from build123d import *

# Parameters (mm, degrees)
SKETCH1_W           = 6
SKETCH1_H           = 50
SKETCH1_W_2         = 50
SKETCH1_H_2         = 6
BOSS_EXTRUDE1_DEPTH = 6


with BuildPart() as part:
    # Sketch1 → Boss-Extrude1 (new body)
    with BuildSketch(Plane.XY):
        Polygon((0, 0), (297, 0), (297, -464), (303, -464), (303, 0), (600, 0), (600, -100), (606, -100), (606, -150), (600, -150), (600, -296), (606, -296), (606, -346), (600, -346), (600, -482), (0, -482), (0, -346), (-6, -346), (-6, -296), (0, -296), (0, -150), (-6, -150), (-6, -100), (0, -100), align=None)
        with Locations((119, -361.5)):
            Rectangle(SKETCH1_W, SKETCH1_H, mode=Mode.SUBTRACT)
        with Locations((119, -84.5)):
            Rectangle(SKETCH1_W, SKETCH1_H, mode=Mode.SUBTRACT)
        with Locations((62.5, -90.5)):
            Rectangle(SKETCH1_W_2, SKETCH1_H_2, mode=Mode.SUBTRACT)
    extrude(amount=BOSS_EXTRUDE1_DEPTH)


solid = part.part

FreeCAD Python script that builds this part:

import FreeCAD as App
import Part
import Sketcher

V = App.Vector
Q = App.Units.Quantity


def add_polygon(sketch, points):
    """Adds a closed chain of lines whose ends are joined by coincident constraints."""
    first, n = sketch.GeometryCount, len(points)
    for a, b in zip(points, points[1:] + points[:1]):
        sketch.addGeometry(Part.LineSegment(App.Vector(*a, 0), App.Vector(*b, 0)), False)
    for i in range(n):
        sketch.addConstraint(Sketcher.Constraint("Coincident", first + i, 2, first + (i + 1) % n, 1))

doc = App.newDocument("Part")
params = doc.addObject("Spreadsheet::Sheet", "Params")
for row, (alias, value) in enumerate([
    ("sketch1_width", "297 mm"),
    ("sketch1_width2", "6 mm"),
    ("sketch1_width3", "50 mm"),
    ("sketch1_height", "100 mm"),
    ("sketch1_height2", "146 mm"),
    ("pad1_length", "6 mm"),
], start=1):
    params.set(f"A{row}", alias)
    params.set(f"B{row}", "=" + value)
    params.setAlias(f"B{row}", alias)

body = doc.addObject("PartDesign::Body", "Body")

# Sketch on XY plane
sketch1 = body.newObject("Sketcher::SketchObject", "Sketch")
sketch1.AttachmentSupport = (doc.getObject("XY_Plane"), [""])
sketch1.MapMode = "FlatFace"
add_polygon(sketch1, [(297, 0), (0, 0), (0, -100), (-6, -100), (-6, -150), (0, -150), (0, -296), (-6, -296), (-6, -346), (0, -346), (0, -482), (600, -482), (600, -346), (606, -346), (606, -296), (600, -296), (600, -150), (606, -150), (606, -100), (600, -100), (600, 0), (303, 0), (303, -464), (297, -464)])  # lines 0-23
add_polygon(sketch1, [(116, -386), (116, -336), (122, -336), (122, -386)])  # lines 24-27
add_polygon(sketch1, [(116, -110), (116, -60), (122, -60), (122, -110)])  # lines 28-31
add_polygon(sketch1, [(38, -94), (38, -88), (88, -88), (88, -94)])  # lines 32-35
sketch1.addConstraint([
    Sketcher.Constraint("Horizontal", 0),
    Sketcher.Constraint("Vertical", 1),
    Sketcher.Constraint("Horizontal", 2),
    Sketcher.Constraint("Vertical", 3),
    Sketcher.Constraint("Horizontal", 4),
    Sketcher.Constraint("Vertical", 5),
    Sketcher.Constraint("Horizontal", 6),
    Sketcher.Constraint("Vertical", 7),
    Sketcher.Constraint("Horizontal", 8),
    Sketcher.Constraint("Vertical", 9),
    Sketcher.Constraint("Horizontal", 10),
    Sketcher.Constraint("Vertical", 11),
    Sketcher.Constraint("Horizontal", 12),
    Sketcher.Constraint("Vertical", 13),
    Sketcher.Constraint("Horizontal", 14),
    Sketcher.Constraint("Vertical", 15),
    Sketcher.Constraint("Horizontal", 16),
    Sketcher.Constraint("Vertical", 17),
    Sketcher.Constraint("Horizontal", 18),
    Sketcher.Constraint("Vertical", 19),
    Sketcher.Constraint("Horizontal", 20),
    Sketcher.Constraint("Vertical", 21),
    Sketcher.Constraint("Horizontal", 22),
    Sketcher.Constraint("Vertical", 23),
    Sketcher.Constraint("Vertical", 24),
    Sketcher.Constraint("Horizontal", 25),
    Sketcher.Constraint("Vertical", 26),
    Sketcher.Constraint("Horizontal", 27),
    Sketcher.Constraint("Vertical", 28),
    Sketcher.Constraint("Horizontal", 29),
    Sketcher.Constraint("Vertical", 30),
    Sketcher.Constraint("Horizontal", 31),
    Sketcher.Constraint("Vertical", 32),
    Sketcher.Constraint("Horizontal", 33),
    Sketcher.Constraint("Vertical", 34),
    Sketcher.Constraint("Horizontal", 35),
    Sketcher.Constraint("Coincident", 0, 2, -1, 1),
    Sketcher.Constraint("PointOnObject", 4, 2, -2),
    Sketcher.Constraint("PointOnObject", 8, 2, -2),
    Sketcher.Constraint("PointOnObject", 19, 2, -1),
    Sketcher.Constraint("Horizontal", 8, 2, 11, 2),
    Sketcher.Constraint("Horizontal", 6, 2, 13, 2),
    Sketcher.Constraint("Horizontal", 4, 2, 15, 2),
    Sketcher.Constraint("Horizontal", 2, 2, 17, 2),
    Sketcher.Constraint("Vertical", 3, 2, 6, 2),
    Sketcher.Constraint("Vertical", 11, 2, 14, 2),
    Sketcher.Constraint("Vertical", 13, 2, 16, 2),
    Sketcher.Constraint("Vertical", 15, 2, 18, 2),
    Sketcher.Constraint("Vertical", 27, 2, 28, 2),
    Sketcher.Constraint("Vertical", 26, 2, 29, 2),
    Sketcher.Constraint("Equal", 8, 12),
    Sketcher.Constraint("Equal", 0, 20),
    Sketcher.Constraint("Equal", 18, 22),
    Sketcher.Constraint("Equal", 22, 25),
    Sketcher.Constraint("Equal", 35, 3),
    Sketcher.Constraint("Equal", 3, 7),
    Sketcher.Constraint("Equal", 17, 24),
    Sketcher.Constraint("Equal", 26, 28),
    Sketcher.Constraint("Equal", 31, 32),
    Sketcher.Constraint("DistanceX", 0, 2, 0, 1, Q("297 mm")),
    Sketcher.Constraint("DistanceX", 2, 2, 2, 1, Q("6 mm")),
    Sketcher.Constraint("DistanceX", 33, 1, 33, 2, Q("50 mm")),
    Sketcher.Constraint("DistanceY", 1, 2, 1, 1, Q("100 mm")),
    Sketcher.Constraint("DistanceY", 5, 2, 5, 1, Q("146 mm")),
    Sketcher.Constraint("DistanceY", 9, 2, 9, 1, Q("136 mm")),
    Sketcher.Constraint("DistanceY", 21, 2, 21, 1, Q("464 mm")),
    Sketcher.Constraint("DistanceX", -1, 1, 24, 2, Q("116 mm")),
    Sketcher.Constraint("DistanceY", 31, 2, 32, 2, Q("22 mm")),
    Sketcher.Constraint("DistanceY", 24, 2, -1, 1, Q("336.5 mm")),
    Sketcher.Constraint("DistanceY", 28, 2, -1, 1, Q("59.5 mm")),
    Sketcher.Constraint("DistanceX", -1, 1, 32, 2, Q("37.5 mm")),
])
sketch1.setExpression("Constraints[95]", "Params.sketch1_width")
sketch1.setExpression("Constraints[96]", "Params.sketch1_width2")
sketch1.setExpression("Constraints[97]", "Params.sketch1_width3")
sketch1.setExpression("Constraints[98]", "Params.sketch1_height")
sketch1.setExpression("Constraints[99]", "Params.sketch1_height2")
pad1 = body.newObject("PartDesign::Pad", "Pad")
pad1.Profile = sketch1
pad1.setExpression("Length", "Params.pad1_length")

doc.recompute()
